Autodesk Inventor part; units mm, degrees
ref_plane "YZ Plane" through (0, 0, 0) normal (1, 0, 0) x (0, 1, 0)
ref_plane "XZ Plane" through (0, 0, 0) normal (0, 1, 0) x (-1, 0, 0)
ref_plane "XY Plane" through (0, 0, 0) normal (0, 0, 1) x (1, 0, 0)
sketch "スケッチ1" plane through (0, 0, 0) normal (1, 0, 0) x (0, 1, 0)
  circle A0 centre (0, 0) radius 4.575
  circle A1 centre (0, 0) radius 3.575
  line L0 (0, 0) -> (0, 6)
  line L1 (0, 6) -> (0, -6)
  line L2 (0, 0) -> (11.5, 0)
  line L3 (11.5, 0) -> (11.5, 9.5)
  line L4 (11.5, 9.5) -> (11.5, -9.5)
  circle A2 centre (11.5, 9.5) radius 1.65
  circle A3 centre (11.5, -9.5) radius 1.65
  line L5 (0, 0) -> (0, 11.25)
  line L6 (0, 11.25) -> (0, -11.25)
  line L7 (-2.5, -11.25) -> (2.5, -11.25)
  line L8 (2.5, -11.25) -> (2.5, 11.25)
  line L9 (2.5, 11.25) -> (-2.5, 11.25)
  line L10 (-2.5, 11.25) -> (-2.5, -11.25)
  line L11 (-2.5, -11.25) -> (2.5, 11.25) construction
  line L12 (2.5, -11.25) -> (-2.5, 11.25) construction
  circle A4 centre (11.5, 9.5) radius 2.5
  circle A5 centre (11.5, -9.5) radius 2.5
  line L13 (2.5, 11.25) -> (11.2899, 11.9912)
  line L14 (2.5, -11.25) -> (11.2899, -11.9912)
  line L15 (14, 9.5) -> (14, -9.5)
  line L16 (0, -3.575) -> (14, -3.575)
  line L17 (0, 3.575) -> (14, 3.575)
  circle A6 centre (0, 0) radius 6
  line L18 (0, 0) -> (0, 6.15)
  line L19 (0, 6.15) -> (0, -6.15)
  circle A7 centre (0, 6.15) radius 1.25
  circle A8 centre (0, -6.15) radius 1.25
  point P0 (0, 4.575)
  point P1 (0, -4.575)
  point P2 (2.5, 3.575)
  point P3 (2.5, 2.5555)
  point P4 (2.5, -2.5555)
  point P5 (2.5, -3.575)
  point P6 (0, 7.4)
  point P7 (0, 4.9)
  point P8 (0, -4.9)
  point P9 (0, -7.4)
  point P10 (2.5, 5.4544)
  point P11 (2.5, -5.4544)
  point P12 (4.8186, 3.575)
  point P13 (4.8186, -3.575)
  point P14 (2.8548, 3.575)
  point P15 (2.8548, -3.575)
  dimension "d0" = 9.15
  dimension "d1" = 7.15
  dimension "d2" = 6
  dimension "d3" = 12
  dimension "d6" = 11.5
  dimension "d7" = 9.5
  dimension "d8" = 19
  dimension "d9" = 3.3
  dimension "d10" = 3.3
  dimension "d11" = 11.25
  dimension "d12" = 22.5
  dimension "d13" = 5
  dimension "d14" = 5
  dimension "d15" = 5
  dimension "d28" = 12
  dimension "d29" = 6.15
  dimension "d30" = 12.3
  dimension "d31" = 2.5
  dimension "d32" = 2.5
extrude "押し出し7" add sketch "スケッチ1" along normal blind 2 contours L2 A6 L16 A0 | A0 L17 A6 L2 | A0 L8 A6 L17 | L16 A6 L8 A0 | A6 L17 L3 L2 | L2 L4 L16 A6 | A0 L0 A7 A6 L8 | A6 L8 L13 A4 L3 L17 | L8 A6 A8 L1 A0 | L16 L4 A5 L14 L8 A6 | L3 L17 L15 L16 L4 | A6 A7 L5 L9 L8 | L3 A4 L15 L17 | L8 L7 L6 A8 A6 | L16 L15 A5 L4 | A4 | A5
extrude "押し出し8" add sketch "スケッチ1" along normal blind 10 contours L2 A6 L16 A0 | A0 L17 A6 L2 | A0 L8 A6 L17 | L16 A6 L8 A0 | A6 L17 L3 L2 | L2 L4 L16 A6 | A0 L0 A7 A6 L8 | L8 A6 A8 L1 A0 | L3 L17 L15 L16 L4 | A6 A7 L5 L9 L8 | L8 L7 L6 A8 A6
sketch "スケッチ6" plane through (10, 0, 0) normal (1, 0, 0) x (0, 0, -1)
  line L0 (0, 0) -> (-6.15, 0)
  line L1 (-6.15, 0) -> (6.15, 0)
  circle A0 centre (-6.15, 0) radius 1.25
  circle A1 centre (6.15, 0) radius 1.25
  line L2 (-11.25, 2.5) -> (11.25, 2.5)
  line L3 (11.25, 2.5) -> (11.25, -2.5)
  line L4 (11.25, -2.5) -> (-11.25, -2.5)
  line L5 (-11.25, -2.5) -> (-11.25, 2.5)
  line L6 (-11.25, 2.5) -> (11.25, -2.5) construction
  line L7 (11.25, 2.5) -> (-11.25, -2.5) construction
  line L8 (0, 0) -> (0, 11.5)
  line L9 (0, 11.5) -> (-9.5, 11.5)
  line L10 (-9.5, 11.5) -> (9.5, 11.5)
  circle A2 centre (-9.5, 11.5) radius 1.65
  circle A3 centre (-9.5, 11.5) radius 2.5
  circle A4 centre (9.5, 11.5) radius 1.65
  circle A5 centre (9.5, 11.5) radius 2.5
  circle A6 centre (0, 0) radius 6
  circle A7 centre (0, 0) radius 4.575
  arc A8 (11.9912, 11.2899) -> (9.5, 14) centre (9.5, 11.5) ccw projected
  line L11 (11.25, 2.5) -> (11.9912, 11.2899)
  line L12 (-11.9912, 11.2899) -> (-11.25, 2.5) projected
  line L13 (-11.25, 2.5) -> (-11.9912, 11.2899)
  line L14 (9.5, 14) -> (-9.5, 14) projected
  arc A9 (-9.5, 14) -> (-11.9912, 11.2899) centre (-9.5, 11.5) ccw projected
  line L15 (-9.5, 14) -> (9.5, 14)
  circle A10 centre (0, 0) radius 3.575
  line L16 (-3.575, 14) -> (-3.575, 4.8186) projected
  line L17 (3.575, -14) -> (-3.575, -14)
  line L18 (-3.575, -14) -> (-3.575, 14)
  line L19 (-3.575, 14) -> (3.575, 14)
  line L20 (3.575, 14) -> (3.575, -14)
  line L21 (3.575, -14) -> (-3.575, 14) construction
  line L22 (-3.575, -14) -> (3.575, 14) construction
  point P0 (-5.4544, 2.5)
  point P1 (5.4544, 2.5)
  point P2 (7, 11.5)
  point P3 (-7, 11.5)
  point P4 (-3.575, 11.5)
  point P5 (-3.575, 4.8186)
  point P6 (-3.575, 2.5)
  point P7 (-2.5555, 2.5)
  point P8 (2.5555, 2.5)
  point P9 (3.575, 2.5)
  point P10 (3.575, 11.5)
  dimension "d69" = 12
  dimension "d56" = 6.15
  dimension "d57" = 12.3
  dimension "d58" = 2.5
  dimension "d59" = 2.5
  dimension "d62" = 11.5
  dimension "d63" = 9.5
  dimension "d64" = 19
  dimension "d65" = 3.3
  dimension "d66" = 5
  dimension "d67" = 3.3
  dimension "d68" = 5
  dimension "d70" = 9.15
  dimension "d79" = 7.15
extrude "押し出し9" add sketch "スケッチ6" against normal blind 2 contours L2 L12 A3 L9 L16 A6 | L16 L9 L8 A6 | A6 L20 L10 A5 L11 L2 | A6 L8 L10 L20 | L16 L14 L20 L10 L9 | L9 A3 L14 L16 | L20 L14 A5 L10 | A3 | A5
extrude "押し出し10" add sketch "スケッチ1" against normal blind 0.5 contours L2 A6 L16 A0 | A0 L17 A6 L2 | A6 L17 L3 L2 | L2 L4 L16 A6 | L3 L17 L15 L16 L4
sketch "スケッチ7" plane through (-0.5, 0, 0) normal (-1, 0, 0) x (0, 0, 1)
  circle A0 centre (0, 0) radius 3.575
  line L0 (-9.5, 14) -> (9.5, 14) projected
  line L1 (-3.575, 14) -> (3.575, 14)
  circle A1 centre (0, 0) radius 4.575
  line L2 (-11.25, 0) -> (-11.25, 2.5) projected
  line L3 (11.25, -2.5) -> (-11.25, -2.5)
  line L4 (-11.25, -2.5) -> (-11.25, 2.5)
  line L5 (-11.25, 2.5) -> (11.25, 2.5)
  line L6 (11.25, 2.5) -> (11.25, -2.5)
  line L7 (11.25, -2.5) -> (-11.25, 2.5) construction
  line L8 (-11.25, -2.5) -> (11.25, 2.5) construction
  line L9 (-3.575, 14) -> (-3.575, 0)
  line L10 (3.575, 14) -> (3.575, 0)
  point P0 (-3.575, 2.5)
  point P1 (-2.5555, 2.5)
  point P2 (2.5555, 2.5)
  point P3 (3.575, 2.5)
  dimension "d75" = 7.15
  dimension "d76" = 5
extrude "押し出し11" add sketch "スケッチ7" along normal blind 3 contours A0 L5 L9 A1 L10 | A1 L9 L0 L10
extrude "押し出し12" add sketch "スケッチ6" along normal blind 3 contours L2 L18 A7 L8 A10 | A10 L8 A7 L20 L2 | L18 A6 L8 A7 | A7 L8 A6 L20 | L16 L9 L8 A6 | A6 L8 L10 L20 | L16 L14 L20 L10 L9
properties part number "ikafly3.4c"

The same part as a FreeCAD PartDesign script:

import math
import FreeCAD as App
import Part
import Sketcher
Q = App.Units.Quantity

doc = App.newDocument("Part")
body = doc.addObject("PartDesign::Body", "Body")

# Sketch on YZ plane
sketch1 = body.newObject("Sketcher::SketchObject", "Sketch")
sketch1.AttachmentSupport = (doc.getObject("YZ_Plane"), [""])
sketch1.MapMode = "FlatFace"
sketch1.addGeometry([
    Part.LineSegment(App.Vector(0, -4.575, 0), App.Vector(0, -4.9, 0)),  # 0
    Part.ArcOfCircle(Part.Circle(App.Vector(0, -6.15, 0), App.Vector(0, 0, 1), 1.25), math.radians(-90), math.radians(90)),  # 1
    Part.LineSegment(App.Vector(0, -7.4, 0), App.Vector(0, -11.25, 0)),  # 2
    Part.LineSegment(App.Vector(0, -11.25, 0), App.Vector(2.5, -11.25, 0)),  # 3
    Part.LineSegment(App.Vector(2.5, -11.25, 0), App.Vector(11.2899, -11.9912, 0)),  # 4
    Part.ArcOfCircle(Part.Circle(App.Vector(11.5, -9.5, 0), App.Vector(0, 0, 1), 2.5), math.radians(-94.820739), math.radians(0)),  # 5
    Part.LineSegment(App.Vector(14, -9.5, 0), App.Vector(14, 9.5, 0)),  # 6
    Part.ArcOfCircle(Part.Circle(App.Vector(11.5, 9.5, 0), App.Vector(0, 0, 1), 2.5), math.radians(0), math.radians(94.820739)),  # 7
    Part.LineSegment(App.Vector(11.2899, 11.9912, 0), App.Vector(2.5, 11.25, 0)),  # 8
    Part.LineSegment(App.Vector(2.5, 11.25, 0), App.Vector(0, 11.25, 0)),  # 9
    Part.LineSegment(App.Vector(0, 11.25, 0), App.Vector(0, 7.4, 0)),  # 10
    Part.ArcOfCircle(Part.Circle(App.Vector(0, 6.15, 0), App.Vector(0, 0, 1), 1.25), math.radians(-90), math.radians(90)),  # 11
    Part.LineSegment(App.Vector(0, 4.9, 0), App.Vector(0, 4.575, 0)),  # 12
    Part.ArcOfCircle(Part.Circle(App.Vector(0, 0, 0), App.Vector(0, 0, 1), 4.575), math.radians(-90), math.radians(90)),  # 13
    Part.Circle(App.Vector(11.5, -9.5, 0), App.Vector(0, 0, 1), 1.65),  # 14
    Part.Circle(App.Vector(11.5, 9.5, 0), App.Vector(0, 0, 1), 1.65),  # 15
], False)
sketch1.addConstraint([
    Sketcher.Constraint("Coincident", 0, 2, 1, 2),
    Sketcher.Constraint("Coincident", 1, 1, 2, 1),
    Sketcher.Constraint("Coincident", 2, 2, 3, 1),
    Sketcher.Constraint("Coincident", 3, 2, 4, 1),
    Sketcher.Constraint("Tangent", 4, 2, 5, 1),
    Sketcher.Constraint("Tangent", 5, 2, 6, 1),
    Sketcher.Constraint("Tangent", 6, 2, 7, 1),
    Sketcher.Constraint("Tangent", 7, 2, 8, 1),
    Sketcher.Constraint("Coincident", 8, 2, 9, 1),
    Sketcher.Constraint("Coincident", 9, 2, 10, 1),
    Sketcher.Constraint("Coincident", 10, 2, 11, 2),
    Sketcher.Constraint("Coincident", 11, 1, 12, 1),
    Sketcher.Constraint("Coincident", 12, 2, 13, 2),
    Sketcher.Constraint("Coincident", 13, 1, 0, 1),
    Sketcher.Constraint("Vertical", 0),
    Sketcher.Constraint("Vertical", 2),
    Sketcher.Constraint("Horizontal", 3),
    Sketcher.Constraint("Vertical", 6),
    Sketcher.Constraint("Horizontal", 9),
    Sketcher.Constraint("Vertical", 10),
    Sketcher.Constraint("Vertical", 12),
    Sketcher.Constraint("Coincident", 13, 3, -1, 1),
    Sketcher.Constraint("Coincident", 14, 3, 5, 3),
    Sketcher.Constraint("Coincident", 15, 3, 7, 3),
    Sketcher.Constraint("Equal", 5, 7),
    Sketcher.Constraint("Equal", 1, 11),
    Sketcher.Constraint("Equal", 14, 15),
    Sketcher.Constraint("Symmetric", 1, 3, 11, 3, -1, 1),
    Sketcher.Constraint("Symmetric", 2, 2, 9, 2, -1, 1),
    Sketcher.Constraint("Symmetric", 4, 2, 7, 2, -1),
    Sketcher.Constraint("PointOnObject", 1, 3, -2),
    Sketcher.Constraint("PointOnObject", 0, 2, -2),
    Sketcher.Constraint("PointOnObject", 1, 1, -2),
    Sketcher.Constraint("PointOnObject", 11, 1, -2),
    Sketcher.Constraint("Diameter", 14, 3.3),
    Sketcher.Constraint("Radius", 5, 2.5),
    Sketcher.Constraint("DistanceY", 6, 1, 6, 2, 19.0),
    Sketcher.Constraint("Radius", 1, 1.25),
    Sketcher.Constraint("DistanceX", 3, 1, 3, 2, 2.5),
    Sketcher.Constraint("Radius", 13, 4.575),
    Sketcher.Constraint("DistanceX", -1, 1, 5, 3, 11.5),
    Sketcher.Constraint("DistanceY", 1, 3, 11, 3, 12.3),
    Sketcher.Constraint("DistanceY", 2, 2, -1, 1, 11.25),
])
pad1 = body.newObject("PartDesign::Pad", "Pad")
pad1.Profile = sketch1
pad1.Length = 2

# Sketch on YZ plane
sketch2 = body.newObject("Sketcher::SketchObject", "Sketch001")
sketch2.AttachmentSupport = (doc.getObject("YZ_Plane"), [""])
sketch2.MapMode = "FlatFace"
sketch2.addGeometry([
    Part.LineSegment(App.Vector(0, -4.575, 0), App.Vector(0, -4.9, 0)),  # 0
    Part.ArcOfCircle(Part.Circle(App.Vector(0, -6.15, 0), App.Vector(0, 0, 1), 1.25), math.radians(-90), math.radians(90)),  # 1
    Part.LineSegment(App.Vector(0, -7.4, 0), App.Vector(0, -11.25, 0)),  # 2
    Part.LineSegment(App.Vector(0, -11.25, 0), App.Vector(2.5, -11.25, 0)),  # 3
    Part.LineSegment(App.Vector(2.5, -11.25, 0), App.Vector(2.5, -5.454356, 0)),  # 4
    Part.ArcOfCircle(Part.Circle(App.Vector(0, 0, 0), App.Vector(0, 0, 1), 6), math.radians(-65.375682), math.radians(-36.572061)),  # 5
    Part.LineSegment(App.Vector(4.818649, -3.575, 0), App.Vector(14, -3.575, 0)),  # 6
    Part.LineSegment(App.Vector(14, -3.575, 0), App.Vector(14, 3.575, 0)),  # 7
    Part.LineSegment(App.Vector(14, 3.575, 0), App.Vector(4.818649, 3.575, 0)),  # 8
    Part.ArcOfCircle(Part.Circle(App.Vector(0, 0, 0), App.Vector(0, 0, 1), 6), math.radians(36.572061), math.radians(65.375682)),  # 9
    Part.LineSegment(App.Vector(2.5, 5.454356, 0), App.Vector(2.5, 11.25, 0)),  # 10
    Part.LineSegment(App.Vector(2.5, 11.25, 0), App.Vector(0, 11.25, 0)),  # 11
    Part.LineSegment(App.Vector(0, 11.25, 0), App.Vector(0, 7.4, 0)),  # 12
    Part.ArcOfCircle(Part.Circle(App.Vector(0, 6.15, 0), App.Vector(0, 0, 1), 1.25), math.radians(-90), math.radians(90)),  # 13
    Part.LineSegment(App.Vector(0, 4.9, 0), App.Vector(0, 4.575, 0)),  # 14
    Part.ArcOfCircle(Part.Circle(App.Vector(0, 0, 0), App.Vector(0, 0, 1), 4.575), math.radians(-90), math.radians(90)),  # 15
], False)
sketch2.addConstraint([
    Sketcher.Constraint("Coincident", 0, 2, 1, 2),
    Sketcher.Constraint("Coincident", 1, 1, 2, 1),
    Sketcher.Constraint("Coincident", 2, 2, 3, 1),
    Sketcher.Constraint("Coincident", 3, 2, 4, 1),
    Sketcher.Constraint("Coincident", 4, 2, 5, 1),
    Sketcher.Constraint("Coincident", 5, 2, 6, 1),
    Sketcher.Constraint("Coincident", 6, 2, 7, 1),
    Sketcher.Constraint("Coincident", 7, 2, 8, 1),
    Sketcher.Constraint("Coincident", 8, 2, 9, 1),
    Sketcher.Constraint("Coincident", 9, 2, 10, 1),
    Sketcher.Constraint("Coincident", 10, 2, 11, 1),
    Sketcher.Constraint("Coincident", 11, 2, 12, 1),
    Sketcher.Constraint("Coincident", 12, 2, 13, 2),
    Sketcher.Constraint("Coincident", 13, 1, 14, 1),
    Sketcher.Constraint("Coincident", 14, 2, 15, 2),
    Sketcher.Constraint("Coincident", 15, 1, 0, 1),
    Sketcher.Constraint("Vertical", 0),
    Sketcher.Constraint("Vertical", 2),
    Sketcher.Constraint("Horizontal", 3),
    Sketcher.Constraint("Vertical", 4),
    Sketcher.Constraint("Horizontal", 6),
    Sketcher.Constraint("Vertical", 7),
    Sketcher.Constraint("Horizontal", 8),
    Sketcher.Constraint("Vertical", 10),
    Sketcher.Constraint("Horizontal", 11),
    Sketcher.Constraint("Vertical", 12),
    Sketcher.Constraint("Vertical", 14),
    Sketcher.Constraint("Coincident", 5, 3, -1, 1),
    Sketcher.Constraint("Coincident", 9, 3, -1, 1),
    Sketcher.Constraint("Coincident", 15, 3, -1, 1),
    Sketcher.Constraint("Equal", 5, 9),
    Sketcher.Constraint("Equal", 1, 13),
    Sketcher.Constraint("Symmetric", 1, 3, 13, 3, -1, 1),
    Sketcher.Constraint("Symmetric", 2, 2, 11, 2, -1, 1),
    Sketcher.Constraint("PointOnObject", 1, 3, -2),
    Sketcher.Constraint("PointOnObject", 0, 2, -2),
    Sketcher.Constraint("PointOnObject", 1, 1, -2),
    Sketcher.Constraint("PointOnObject", 13, 1, -2),
    Sketcher.Constraint("Vertical", 5, 2, 8, 2),
    Sketcher.Constraint("Vertical", 4, 2, 9, 2),
    Sketcher.Constraint("Radius", 5, 6.0),
    Sketcher.Constraint("Radius", 1, 1.25),
    Sketcher.Constraint("DistanceX", 3, 1, 3, 2, 2.5),
    Sketcher.Constraint("Radius", 15, 4.575),
    Sketcher.Constraint("DistanceY", 7, 1, 7, 2, 7.15),
    Sketcher.Constraint("DistanceY", 1, 3, 13, 3, 12.3),
    Sketcher.Constraint("DistanceX", 4, 2, 6, 2, 11.5),
    Sketcher.Constraint("DistanceY", 2, 2, -1, 1, 11.25),
])
pad2 = body.newObject("PartDesign::Pad", "Pad001")
pad2.Profile = sketch2
pad2.Length = 10

# Sketch on YZ plane
sketch3 = body.newObject("Sketcher::SketchObject", "Sketch002")
sketch3.AttachmentSupport = (doc.getObject("YZ_Plane"), [""])
sketch3.MapMode = "FlatFace"
sketch3.AttachmentOffset = App.Placement(App.Vector(0, 0, 10), App.Rotation())
sketch3.addGeometry([
    Part.LineSegment(App.Vector(2.5, 11.25, 0), App.Vector(2.5, 5.454356, 0)),  # 0
    Part.ArcOfCircle(Part.Circle(App.Vector(0, 0, 0), App.Vector(0, 0, 1), 6), math.radians(-65.375682), math.radians(65.375682)),  # 1
    Part.LineSegment(App.Vector(2.5, -5.454356, 0), App.Vector(2.5, -11.25, 0)),  # 2
    Part.LineSegment(App.Vector(2.5, -11.25, 0), App.Vector(11.2899, -11.9912, 0)),  # 3
    Part.ArcOfCircle(Part.Circle(App.Vector(11.5, -9.5, 0), App.Vector(0, 0, 1), 2.5), math.radians(-94.820739), math.radians(0)),  # 4
    Part.LineSegment(App.Vector(14, -9.5, 0), App.Vector(14, 9.5, 0)),  # 5
    Part.ArcOfCircle(Part.Circle(App.Vector(11.5, 9.5, 0), App.Vector(0, 0, 1), 2.5), math.radians(0), math.radians(94.820739)),  # 6
    Part.LineSegment(App.Vector(11.2899, 11.9912, 0), App.Vector(2.5, 11.25, 0)),  # 7
    Part.Circle(App.Vector(11.5, 9.5, 0), App.Vector(0, 0, 1), 1.65),  # 8
    Part.Circle(App.Vector(11.5, -9.5, 0), App.Vector(0, 0, 1), 1.65),  # 9
], False)
sketch3.addConstraint([
    Sketcher.Constraint("Coincident", 0, 2, 1, 2),
    Sketcher.Constraint("Coincident", 1, 1, 2, 1),
    Sketcher.Constraint("Coincident", 2, 2, 3, 1),
    Sketcher.Constraint("Tangent", 3, 2, 4, 1),
    Sketcher.Constraint("Tangent", 4, 2, 5, 1),
    Sketcher.Constraint("Tangent", 5, 2, 6, 1),
    Sketcher.Constraint("Tangent", 6, 2, 7, 1),
    Sketcher.Constraint("Coincident", 7, 2, 0, 1),
    Sketcher.Constraint("Vertical", 0),
    Sketcher.Constraint("Vertical", 2),
    Sketcher.Constraint("Vertical", 5),
    Sketcher.Constraint("Coincident", 1, 3, -1, 1),
    Sketcher.Constraint("Coincident", 8, 3, 6, 3),
    Sketcher.Constraint("Coincident", 9, 3, 4, 3),
    Sketcher.Constraint("Equal", 4, 6),
    Sketcher.Constraint("Equal", 8, 9),
    Sketcher.Constraint("Symmetric", 3, 2, 6, 2, -1),
    Sketcher.Constraint("Vertical", 0, 2, 1, 1),
    Sketcher.Constraint("Radius", 1, 6.0),
    Sketcher.Constraint("Diameter", 8, 3.3),
    Sketcher.Constraint("Radius", 4, 2.5),
    Sketcher.Constraint("DistanceY", 5, 1, 5, 2, 19.0),
    Sketcher.Constraint("DistanceX", -1, 1, 4, 3, 11.5),
    Sketcher.Constraint("DistanceX", -1, 1, 0, 2, 2.5),
    Sketcher.Constraint("Angle", 3, Q("-4.82 deg")),
])
pad3 = body.newObject("PartDesign::Pad", "Pad002")
pad3.Profile = sketch3
pad3.Length = 2
pad3.Reversed = True

# Sketch on YZ plane
sketch4 = body.newObject("Sketcher::SketchObject", "Sketch003")
sketch4.AttachmentSupport = (doc.getObject("YZ_Plane"), [""])
sketch4.MapMode = "FlatFace"
sketch4.addGeometry([
    Part.LineSegment(App.Vector(2.85482, -3.575, 0), App.Vector(14, -3.575, 0)),
    Part.LineSegment(App.Vector(14, -3.575, 0), App.Vector(14, 3.575, 0)),
    Part.LineSegment(App.Vector(14, 3.575, 0), App.Vector(2.85482, 3.575, 0)),
    Part.ArcOfCircle(Part.Circle(App.Vector(0, 0, 0), App.Vector(0, 0, 1), 4.575), math.radians(-51.390844), math.radians(51.390844)),
], False)
sketch4.addConstraint([
    Sketcher.Constraint("Coincident", 0, 2, 1, 1),
    Sketcher.Constraint("Coincident", 1, 2, 2, 1),
    Sketcher.Constraint("Coincident", 2, 2, 3, 2),
    Sketcher.Constraint("Coincident", 3, 1, 0, 1),
    Sketcher.Constraint("Horizontal", 0),
    Sketcher.Constraint("Vertical", 1),
    Sketcher.Constraint("Horizontal", 2),
    Sketcher.Constraint("Coincident", 3, 3, -1, 1),
    Sketcher.Constraint("Vertical", 2, 2, 3, 1),
    Sketcher.Constraint("Radius", 3, 4.575),
    Sketcher.Constraint("DistanceY", 1, 1, 1, 2, 7.15),
    Sketcher.Constraint("DistanceX", -1, 1, 0, 2, 14.0),
])
pad4 = body.newObject("PartDesign::Pad", "Pad003")
pad4.Profile = sketch4
pad4.Length = 0.5
pad4.Reversed = True

# Sketch on YZ plane
sketch5 = body.newObject("Sketcher::SketchObject", "Sketch004")
sketch5.AttachmentSupport = (doc.getObject("YZ_Plane"), [""])
sketch5.MapMode = "FlatFace"
sketch5.AttachmentOffset = App.Placement(App.Vector(0, 0, -0.5), App.Rotation())
sketch5.addGeometry([
    Part.ArcOfCircle(Part.Circle(App.Vector(0, 0, 0), App.Vector(0, 0, 1), 3.575), math.radians(-45.629074), math.radians(45.629074)),  # 0
    Part.LineSegment(App.Vector(2.5, 2.555509, 0), App.Vector(2.5, 3.575, 0)),  # 1
    Part.LineSegment(App.Vector(2.5, 3.575, 0), App.Vector(14, 3.575, 0)),  # 2
    Part.LineSegment(App.Vector(14, 3.575, 0), App.Vector(14, -3.575, 0)),  # 3
    Part.LineSegment(App.Vector(14, -3.575, 0), App.Vector(2.5, -3.575, 0)),  # 4
    Part.LineSegment(App.Vector(2.5, -3.575, 0), App.Vector(2.5, -2.555509, 0)),  # 5
], False)
sketch5.addConstraint([
    Sketcher.Constraint("Coincident", 0, 2, 1, 1),
    Sketcher.Constraint("Coincident", 1, 2, 2, 1),
    Sketcher.Constraint("Coincident", 2, 2, 3, 1),
    Sketcher.Constraint("Coincident", 3, 2, 4, 1),
    Sketcher.Constraint("Coincident", 4, 2, 5, 1),
    Sketcher.Constraint("Coincident", 5, 2, 0, 1),
    Sketcher.Constraint("Vertical", 1),
    Sketcher.Constraint("Horizontal", 2),
    Sketcher.Constraint("Vertical", 3),
    Sketcher.Constraint("Horizontal", 4),
    Sketcher.Constraint("Vertical", 5),
    Sketcher.Constraint("Coincident", 0, 3, -1, 1),
    Sketcher.Constraint("Symmetric", 1, 2, 4, 2, -1),
    Sketcher.Constraint("Radius", 0, 3.575),
    Sketcher.Constraint("DistanceY", 3, 2, 3, 1, 7.15),
    Sketcher.Constraint("DistanceX", 2, 1, 2, 2, 11.5),
    Sketcher.Constraint("DistanceX", -1, 1, 2, 2, 14.0),
])
pad5 = body.newObject("PartDesign::Pad", "Pad004")
pad5.Profile = sketch5
pad5.Length = 3
pad5.Reversed = True

# Sketch on YZ plane
sketch6 = body.newObject("Sketcher::SketchObject", "Sketch005")
sketch6.AttachmentSupport = (doc.getObject("YZ_Plane"), [""])
sketch6.MapMode = "FlatFace"
sketch6.AttachmentOffset = App.Placement(App.Vector(0, 0, 10), App.Rotation())
sketch6.addGeometry([
    Part.LineSegment(App.Vector(2.5, 3.575, 0), App.Vector(2.5, 2.555509, 0)),  # 0
    Part.ArcOfCircle(Part.Circle(App.Vector(0, 0, 0), App.Vector(0, 0, 1), 3.575), math.radians(-45.629074), math.radians(45.629074)),  # 1
    Part.LineSegment(App.Vector(2.5, -2.555509, 0), App.Vector(2.5, -3.575, 0)),  # 2
    Part.LineSegment(App.Vector(2.5, -3.575, 0), App.Vector(14, -3.575, 0)),  # 3
    Part.LineSegment(App.Vector(14, -3.575, 0), App.Vector(14, 3.575, 0)),  # 4
    Part.LineSegment(App.Vector(14, 3.575, 0), App.Vector(2.5, 3.575, 0)),  # 5
], False)
sketch6.addConstraint([
    Sketcher.Constraint("Coincident", 0, 2, 1, 2),
    Sketcher.Constraint("Coincident", 1, 1, 2, 1),
    Sketcher.Constraint("Coincident", 2, 2, 3, 1),
    Sketcher.Constraint("Coincident", 3, 2, 4, 1),
    Sketcher.Constraint("Coincident", 4, 2, 5, 1),
    Sketcher.Constraint("Coincident", 5, 2, 0, 1),
    Sketcher.Constraint("Vertical", 0),
    Sketcher.Constraint("Vertical", 2),
    Sketcher.Constraint("Horizontal", 3),
    Sketcher.Constraint("Vertical", 4),
    Sketcher.Constraint("Horizontal", 5),
    Sketcher.Constraint("Coincident", 1, 3, -1, 1),
    Sketcher.Constraint("Symmetric", 2, 2, 5, 2, -1),
    Sketcher.Constraint("DistanceX", 3, 1, 3, 2, 11.5),
    Sketcher.Constraint("Radius", 1, 3.575),
    Sketcher.Constraint("DistanceY", 4, 1, 4, 2, 7.15),
    Sketcher.Constraint("DistanceX", -1, 1, 0, 2, 2.5),
])
pad6 = body.newObject("PartDesign::Pad", "Pad005")
pad6.Profile = sketch6
pad6.Length = 3

doc.recompute()
